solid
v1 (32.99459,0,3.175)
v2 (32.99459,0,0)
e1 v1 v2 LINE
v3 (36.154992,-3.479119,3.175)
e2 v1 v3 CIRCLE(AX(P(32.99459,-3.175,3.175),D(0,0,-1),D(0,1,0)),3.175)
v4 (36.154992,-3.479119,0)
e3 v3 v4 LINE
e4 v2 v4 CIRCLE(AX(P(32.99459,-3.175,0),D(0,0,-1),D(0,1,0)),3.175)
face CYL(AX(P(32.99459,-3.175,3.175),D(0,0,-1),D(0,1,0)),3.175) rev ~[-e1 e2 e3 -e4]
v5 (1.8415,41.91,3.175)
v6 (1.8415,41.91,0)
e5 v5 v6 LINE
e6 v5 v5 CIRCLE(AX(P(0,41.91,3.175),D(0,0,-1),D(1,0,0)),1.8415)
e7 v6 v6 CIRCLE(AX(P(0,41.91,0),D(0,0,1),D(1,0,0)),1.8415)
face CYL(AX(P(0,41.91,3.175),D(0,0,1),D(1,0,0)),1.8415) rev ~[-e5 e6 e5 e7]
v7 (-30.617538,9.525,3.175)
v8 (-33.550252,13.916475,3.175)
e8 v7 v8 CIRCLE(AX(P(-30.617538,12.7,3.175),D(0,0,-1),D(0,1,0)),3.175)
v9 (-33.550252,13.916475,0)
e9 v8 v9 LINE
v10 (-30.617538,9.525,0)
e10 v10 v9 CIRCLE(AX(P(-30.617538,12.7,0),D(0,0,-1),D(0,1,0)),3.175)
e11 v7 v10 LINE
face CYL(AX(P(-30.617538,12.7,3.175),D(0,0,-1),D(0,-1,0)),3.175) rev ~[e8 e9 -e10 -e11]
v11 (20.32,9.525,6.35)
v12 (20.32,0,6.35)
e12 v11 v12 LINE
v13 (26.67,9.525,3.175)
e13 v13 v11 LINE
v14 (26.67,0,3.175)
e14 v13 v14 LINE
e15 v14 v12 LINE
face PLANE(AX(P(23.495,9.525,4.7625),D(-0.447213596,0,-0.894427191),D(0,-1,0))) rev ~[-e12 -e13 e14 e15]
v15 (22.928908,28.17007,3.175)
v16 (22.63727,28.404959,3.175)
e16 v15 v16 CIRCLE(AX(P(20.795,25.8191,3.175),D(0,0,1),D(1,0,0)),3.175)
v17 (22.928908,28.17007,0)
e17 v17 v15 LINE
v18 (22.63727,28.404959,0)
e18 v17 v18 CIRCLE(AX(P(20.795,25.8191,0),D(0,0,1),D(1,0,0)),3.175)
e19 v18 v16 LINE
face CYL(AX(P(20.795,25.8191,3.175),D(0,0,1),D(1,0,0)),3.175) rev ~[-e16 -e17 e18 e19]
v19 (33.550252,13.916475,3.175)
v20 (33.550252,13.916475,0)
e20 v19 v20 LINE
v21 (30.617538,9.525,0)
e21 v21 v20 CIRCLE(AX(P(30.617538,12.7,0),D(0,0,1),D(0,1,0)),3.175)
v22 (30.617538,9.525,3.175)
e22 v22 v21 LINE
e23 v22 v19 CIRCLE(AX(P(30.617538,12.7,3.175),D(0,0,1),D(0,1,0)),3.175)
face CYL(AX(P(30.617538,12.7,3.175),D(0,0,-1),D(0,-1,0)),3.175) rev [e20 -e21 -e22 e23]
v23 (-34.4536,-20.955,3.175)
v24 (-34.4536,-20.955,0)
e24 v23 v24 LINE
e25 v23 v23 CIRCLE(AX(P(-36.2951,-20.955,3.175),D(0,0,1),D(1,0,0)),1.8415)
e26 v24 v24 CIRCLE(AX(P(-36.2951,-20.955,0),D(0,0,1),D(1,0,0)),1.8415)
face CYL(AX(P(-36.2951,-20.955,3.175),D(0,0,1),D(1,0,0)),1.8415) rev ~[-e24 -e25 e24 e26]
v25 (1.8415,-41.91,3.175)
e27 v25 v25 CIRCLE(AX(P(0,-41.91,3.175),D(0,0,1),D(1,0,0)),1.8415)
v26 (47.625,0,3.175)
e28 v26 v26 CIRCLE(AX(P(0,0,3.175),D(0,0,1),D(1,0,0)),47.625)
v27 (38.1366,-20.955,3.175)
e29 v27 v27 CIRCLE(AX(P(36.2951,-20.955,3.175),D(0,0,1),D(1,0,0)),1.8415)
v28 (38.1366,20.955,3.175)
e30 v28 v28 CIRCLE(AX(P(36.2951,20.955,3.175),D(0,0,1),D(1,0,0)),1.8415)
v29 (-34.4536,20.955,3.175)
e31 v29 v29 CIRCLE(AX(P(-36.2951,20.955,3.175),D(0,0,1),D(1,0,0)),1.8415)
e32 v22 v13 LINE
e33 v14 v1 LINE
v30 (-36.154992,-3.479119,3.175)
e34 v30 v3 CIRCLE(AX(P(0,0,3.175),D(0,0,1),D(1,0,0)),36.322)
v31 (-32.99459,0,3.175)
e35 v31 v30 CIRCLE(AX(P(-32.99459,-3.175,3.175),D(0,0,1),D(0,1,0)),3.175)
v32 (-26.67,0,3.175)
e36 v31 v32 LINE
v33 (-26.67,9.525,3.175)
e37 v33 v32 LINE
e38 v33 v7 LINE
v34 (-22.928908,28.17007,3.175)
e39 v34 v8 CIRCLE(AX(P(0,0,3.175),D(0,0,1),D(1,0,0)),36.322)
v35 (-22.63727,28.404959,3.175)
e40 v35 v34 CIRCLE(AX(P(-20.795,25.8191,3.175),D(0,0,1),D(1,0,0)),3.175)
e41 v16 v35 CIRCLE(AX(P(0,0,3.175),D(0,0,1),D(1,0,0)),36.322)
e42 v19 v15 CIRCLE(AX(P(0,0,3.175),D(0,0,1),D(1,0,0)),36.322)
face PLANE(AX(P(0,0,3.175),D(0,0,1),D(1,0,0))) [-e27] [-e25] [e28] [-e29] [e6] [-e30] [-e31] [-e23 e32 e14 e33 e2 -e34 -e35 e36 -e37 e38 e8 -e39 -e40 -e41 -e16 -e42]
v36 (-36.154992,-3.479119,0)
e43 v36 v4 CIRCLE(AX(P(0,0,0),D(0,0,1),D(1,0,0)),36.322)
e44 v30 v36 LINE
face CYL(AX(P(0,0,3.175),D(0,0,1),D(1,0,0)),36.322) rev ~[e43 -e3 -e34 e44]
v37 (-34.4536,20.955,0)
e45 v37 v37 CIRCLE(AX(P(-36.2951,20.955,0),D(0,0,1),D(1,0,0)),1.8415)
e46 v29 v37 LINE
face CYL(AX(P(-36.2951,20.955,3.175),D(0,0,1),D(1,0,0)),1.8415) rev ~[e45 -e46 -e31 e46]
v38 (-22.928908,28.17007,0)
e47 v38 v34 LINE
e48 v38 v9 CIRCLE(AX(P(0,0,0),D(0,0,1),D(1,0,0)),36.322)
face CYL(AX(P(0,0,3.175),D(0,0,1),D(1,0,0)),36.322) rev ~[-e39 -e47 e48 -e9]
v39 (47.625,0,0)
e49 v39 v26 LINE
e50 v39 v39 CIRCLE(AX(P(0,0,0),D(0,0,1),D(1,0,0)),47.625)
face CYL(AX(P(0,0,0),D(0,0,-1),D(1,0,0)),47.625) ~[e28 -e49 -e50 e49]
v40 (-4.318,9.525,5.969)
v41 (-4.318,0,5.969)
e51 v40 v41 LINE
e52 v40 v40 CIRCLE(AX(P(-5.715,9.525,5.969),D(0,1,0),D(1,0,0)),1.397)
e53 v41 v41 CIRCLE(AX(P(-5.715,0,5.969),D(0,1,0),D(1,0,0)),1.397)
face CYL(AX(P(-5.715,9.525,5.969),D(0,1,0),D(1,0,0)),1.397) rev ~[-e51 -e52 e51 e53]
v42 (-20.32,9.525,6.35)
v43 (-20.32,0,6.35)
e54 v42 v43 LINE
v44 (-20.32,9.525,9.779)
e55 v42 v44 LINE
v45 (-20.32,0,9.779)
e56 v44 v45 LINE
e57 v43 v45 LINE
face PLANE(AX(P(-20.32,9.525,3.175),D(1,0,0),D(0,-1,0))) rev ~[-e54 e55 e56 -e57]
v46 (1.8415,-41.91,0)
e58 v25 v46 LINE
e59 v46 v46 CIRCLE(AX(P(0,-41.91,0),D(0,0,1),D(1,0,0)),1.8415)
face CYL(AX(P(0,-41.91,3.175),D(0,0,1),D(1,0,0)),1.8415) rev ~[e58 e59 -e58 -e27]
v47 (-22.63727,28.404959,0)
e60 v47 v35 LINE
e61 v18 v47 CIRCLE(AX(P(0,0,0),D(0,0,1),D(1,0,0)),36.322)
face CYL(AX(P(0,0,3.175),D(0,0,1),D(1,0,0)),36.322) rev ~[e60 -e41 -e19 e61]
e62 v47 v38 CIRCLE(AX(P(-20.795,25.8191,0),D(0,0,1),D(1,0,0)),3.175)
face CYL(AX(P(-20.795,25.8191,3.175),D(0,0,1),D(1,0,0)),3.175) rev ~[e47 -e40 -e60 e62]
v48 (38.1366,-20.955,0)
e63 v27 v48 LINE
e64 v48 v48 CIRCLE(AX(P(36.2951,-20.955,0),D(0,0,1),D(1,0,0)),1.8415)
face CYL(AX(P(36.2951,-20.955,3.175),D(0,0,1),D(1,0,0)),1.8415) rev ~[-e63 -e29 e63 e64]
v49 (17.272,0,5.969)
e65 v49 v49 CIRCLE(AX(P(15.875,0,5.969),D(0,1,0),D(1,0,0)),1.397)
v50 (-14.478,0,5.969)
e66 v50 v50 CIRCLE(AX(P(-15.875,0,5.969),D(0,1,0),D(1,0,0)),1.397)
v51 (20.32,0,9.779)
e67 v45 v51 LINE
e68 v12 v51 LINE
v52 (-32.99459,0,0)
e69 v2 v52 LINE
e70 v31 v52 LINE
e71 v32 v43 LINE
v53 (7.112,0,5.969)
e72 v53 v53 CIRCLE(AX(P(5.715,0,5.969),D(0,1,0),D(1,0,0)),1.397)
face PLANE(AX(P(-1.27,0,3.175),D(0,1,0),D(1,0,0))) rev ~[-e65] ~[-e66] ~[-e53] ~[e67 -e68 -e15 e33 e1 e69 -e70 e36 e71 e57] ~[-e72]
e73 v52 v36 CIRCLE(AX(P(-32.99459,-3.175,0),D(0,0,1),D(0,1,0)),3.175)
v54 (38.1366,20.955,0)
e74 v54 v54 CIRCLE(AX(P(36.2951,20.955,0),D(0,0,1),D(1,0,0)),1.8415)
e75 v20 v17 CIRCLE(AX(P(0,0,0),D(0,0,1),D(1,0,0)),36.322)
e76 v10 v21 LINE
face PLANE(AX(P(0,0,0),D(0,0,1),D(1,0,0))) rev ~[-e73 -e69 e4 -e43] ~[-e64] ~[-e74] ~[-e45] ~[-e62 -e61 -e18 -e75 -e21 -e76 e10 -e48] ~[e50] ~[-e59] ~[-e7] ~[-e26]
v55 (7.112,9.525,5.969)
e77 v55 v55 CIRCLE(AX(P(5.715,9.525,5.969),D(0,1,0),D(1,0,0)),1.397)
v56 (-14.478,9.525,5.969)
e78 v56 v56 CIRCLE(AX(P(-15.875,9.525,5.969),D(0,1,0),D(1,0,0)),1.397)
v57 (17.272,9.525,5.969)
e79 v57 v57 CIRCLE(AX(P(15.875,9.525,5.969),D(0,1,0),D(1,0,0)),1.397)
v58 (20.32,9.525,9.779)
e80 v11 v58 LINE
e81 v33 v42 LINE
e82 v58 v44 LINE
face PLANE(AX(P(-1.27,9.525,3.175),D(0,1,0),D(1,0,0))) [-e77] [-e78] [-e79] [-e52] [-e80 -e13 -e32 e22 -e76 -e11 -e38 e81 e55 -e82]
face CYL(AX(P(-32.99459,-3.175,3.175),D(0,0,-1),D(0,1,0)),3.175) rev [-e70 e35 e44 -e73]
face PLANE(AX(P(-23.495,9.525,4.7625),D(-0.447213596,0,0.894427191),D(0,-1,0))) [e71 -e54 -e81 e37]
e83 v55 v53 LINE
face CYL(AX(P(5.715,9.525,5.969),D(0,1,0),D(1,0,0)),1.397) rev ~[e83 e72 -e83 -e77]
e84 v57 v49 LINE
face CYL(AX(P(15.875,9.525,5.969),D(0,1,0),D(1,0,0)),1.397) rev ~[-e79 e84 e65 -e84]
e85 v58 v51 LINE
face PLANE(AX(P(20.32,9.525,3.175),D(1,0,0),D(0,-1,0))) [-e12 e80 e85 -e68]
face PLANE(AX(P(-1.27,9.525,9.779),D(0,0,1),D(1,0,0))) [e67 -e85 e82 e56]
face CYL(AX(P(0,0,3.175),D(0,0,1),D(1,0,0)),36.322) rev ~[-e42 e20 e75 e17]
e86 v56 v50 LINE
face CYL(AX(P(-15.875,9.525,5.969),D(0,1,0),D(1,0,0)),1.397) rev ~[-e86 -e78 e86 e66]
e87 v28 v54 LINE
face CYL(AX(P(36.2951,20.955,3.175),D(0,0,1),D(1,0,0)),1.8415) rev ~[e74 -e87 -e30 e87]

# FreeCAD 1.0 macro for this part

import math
import FreeCAD as App
import Part
import Sketcher
Q = App.Units.Quantity


def edges_at(feature, points):
    """Names of the edges that pass closest to the given points."""
    edges = feature.Shape.Edges
    near = lambda p: min(range(len(edges)), key=lambda i: edges[i].distToShape(Part.Vertex(*p))[0])
    return sorted({f"Edge{near(p) + 1}" for p in points})

doc = App.newDocument("Part")
params = doc.addObject("Spreadsheet::Sheet", "Params")
for row, (alias, value) in enumerate([
    ("sketch1_diameter", "3.75 in"),
    ("pad1_length", "0.125 in"),
    ("sketch2_width", "0.75 in"),
    ("sketch2_height", "0.375 in"),
    ("pad2_length", "0.26 in"),
    ("sketch3_diameter", "0.11 in"),
    ("sketch4_diameter", "0.25 in"),
    ("pocket2_length", "1 in"),
    ("sketch5_diameter", "0.145 in"),
    ("pocket3_length", "1 in"),
    ("sketch6_radius", "1.43 in"),
    ("sketch7_width", "0.1 in"),
    ("sketch7_height", "0.26 in"),
    ("pad3_length", "0.375 in"),
    ("chamfer_size", "0.25 in"),
    ("chamfer_size2", "0.125 in"),
    ("chamfer2_size", "0.25 in"),
    ("chamfer2_size2", "0.125 in"),
    ("fillet_radius", "0.125 in"),
], start=1):
    params.set(f"A{row}", alias)
    params.set(f"B{row}", "=" + value)
    params.setAlias(f"B{row}", alias)

body = doc.addObject("PartDesign::Body", "Body")

sketch1 = body.newObject("Sketcher::SketchObject", "Sketch")
sketch1.AttachmentSupport = (doc.getObject("XY_Plane"), [""])
sketch1.MapMode = "FlatFace"
sketch1.addGeometry(Part.Circle(App.Vector(0, 0, 0), App.Vector(0, 0, 1), 47.625), False)
sketch1.addConstraint([
    Sketcher.Constraint("Coincident", 0, 3, -1, 1),
    Sketcher.Constraint("Diameter", 0, Q("3.75 in")),
])
sketch1.setExpression("Constraints[1]", "Params.sketch1_diameter")
pad1 = body.newObject("PartDesign::Pad", "Pad")
pad1.Profile = sketch1
pad1.setExpression("Length", "Params.pad1_length")

sketch2 = body.newObject("Sketcher::SketchObject", "Sketch001")
sketch2.AttachmentSupport = (doc.getObject("XY_Plane"), [""])
sketch2.MapMode = "FlatFace"
sketch2.AttachmentOffset = App.Placement(App.Vector(0, 0, 0.125 * 25.4), App.Rotation())
sketch2.addGeometry([
    Part.LineSegment(App.Vector(20.32, 9.525, 0), App.Vector(1.27, 9.525, 0)),
    Part.LineSegment(App.Vector(1.27, 9.525, 0), App.Vector(1.27, 0, 0)),
    Part.LineSegment(App.Vector(1.27, 0, 0), App.Vector(20.32, 0, 0)),
    Part.LineSegment(App.Vector(20.32, 0, 0), App.Vector(20.32, 9.525, 0)),
    Part.LineSegment(App.Vector(-1.27, 0, 0), App.Vector(-1.27, 9.525, 0)),
    Part.LineSegment(App.Vector(-1.27, 9.525, 0), App.Vector(-20.32, 9.525, 0)),
    Part.LineSegment(App.Vector(-20.32, 9.525, 0), App.Vector(-20.32, 0, 0)),
    Part.LineSegment(App.Vector(-20.32, 0, 0), App.Vector(-1.27, 0, 0)),
], False)
sketch2.addConstraint([
    Sketcher.Constraint("Coincident", 0, 2, 1, 1),
    Sketcher.Constraint("Coincident", 1, 2, 2, 1),
    Sketcher.Constraint("Coincident", 2, 2, 3, 1),
    Sketcher.Constraint("Coincident", 3, 2, 0, 1),
    Sketcher.Constraint("Coincident", 4, 2, 5, 1),
    Sketcher.Constraint("Coincident", 5, 2, 6, 1),
    Sketcher.Constraint("Coincident", 6, 2, 7, 1),
    Sketcher.Constraint("Coincident", 7, 2, 4, 1),
    Sketcher.Constraint("Horizontal", 0),
    Sketcher.Constraint("Vertical", 1),
    Sketcher.Constraint("Horizontal", 2),
    Sketcher.Constraint("Vertical", 3),
    Sketcher.Constraint("Vertical", 4),
    Sketcher.Constraint("Horizontal", 5),
    Sketcher.Constraint("Vertical", 6),
    Sketcher.Constraint("Horizontal", 7),
    Sketcher.Constraint("Symmetric", 2, 2, 6, 2, -1, 1),
    Sketcher.Constraint("Symmetric", 0, 2, 4, 2, -2),
    Sketcher.Constraint("PointOnObject", 1, 2, -1),
    Sketcher.Constraint("DistanceX", 0, 2, 0, 1, Q("0.75 in")),
    Sketcher.Constraint("DistanceY", 1, 2, 1, 1, Q("0.375 in")),
    Sketcher.Constraint("DistanceX", -1, 1, 0, 2, Q("0.05 in")),
])
sketch2.setExpression("Constraints[19]", "Params.sketch2_width")
sketch2.setExpression("Constraints[20]", "Params.sketch2_height")
pad2 = body.newObject("PartDesign::Pad", "Pad001")
pad2.Profile = sketch2
pad2.setExpression("Length", "Params.pad2_length")

sketch3 = body.newObject("Sketcher::SketchObject", "Sketch002")
sketch3.AttachmentSupport = (doc.getObject("XZ_Plane"), [""])
sketch3.MapMode = "FlatFace"
sketch3.AttachmentOffset = App.Placement(App.Vector(0, 0, -0.375 * 25.4), App.Rotation())
sketch3.addGeometry([
    Part.Circle(App.Vector(5.715, 5.969, 0), App.Vector(0, 0, 1), 1.397),
    Part.Circle(App.Vector(15.875, 5.969, 0), App.Vector(0, 0, 1), 1.397),
    Part.Circle(App.Vector(-5.715, 5.969, 0), App.Vector(0, 0, 1), 1.397),
    Part.Circle(App.Vector(-15.875, 5.969, 0), App.Vector(0, 0, 1), 1.397),
], False)
sketch3.addConstraint([
    Sketcher.Constraint("Equal", 0, 1),
    Sketcher.Constraint("Equal", 1, 2),
    Sketcher.Constraint("Equal", 2, 3),
    Sketcher.Constraint("Symmetric", 0, 3, 2, 3, -2),
    Sketcher.Constraint("Symmetric", 1, 3, 3, 3, -2),
    Sketcher.Constraint("Horizontal", 0, 3, 1, 3),
    Sketcher.Constraint("Diameter", 0, Q("0.11 in")),
    Sketcher.Constraint("DistanceX", 0, 3, 1, 3, Q("0.4 in")),
    Sketcher.Constraint("DistanceX", 2, 3, 0, 3, Q("0.45 in")),
    Sketcher.Constraint("DistanceY", -1, 1, 0, 3, Q("0.235 in")),
])
sketch3.setExpression("Constraints[6]", "Params.sketch3_diameter")
pocket1 = body.newObject("PartDesign::Pocket", "Pocket")
pocket1.Profile = sketch3
pocket1.Type = "ThroughAll"
pocket1.Reversed = True

sketch4 = body.newObject("Sketcher::SketchObject", "Sketch003")
sketch4.AttachmentSupport = (doc.getObject("XY_Plane"), [""])
sketch4.MapMode = "FlatFace"
sketch4.AttachmentOffset = App.Placement(App.Vector(0, 0, 0.125 * 25.4), App.Rotation())
sketch4.addGeometry([
    Part.Circle(App.Vector(20.795, 25.8191, 0), App.Vector(0, 0, 1), 3.175),
    Part.Circle(App.Vector(-20.795, 25.8191, 0), App.Vector(0, 0, 1), 3.175),
], False)
sketch4.addConstraint([
    Sketcher.Constraint("Equal", 0, 1),
    Sketcher.Constraint("Symmetric", 0, 3, 1, 3, -2),
    Sketcher.Constraint("Diameter", 0, Q("0.25 in")),
    Sketcher.Constraint("DistanceX", -1, 1, 0, 3, Q("0.8187 in")),
    Sketcher.Constraint("DistanceY", -1, 1, 0, 3, Q("1.0165 in")),
])
sketch4.setExpression("Constraints[2]", "Params.sketch4_diameter")
pocket2 = body.newObject("PartDesign::Pocket", "Pocket001")
pocket2.Profile = sketch4
pocket2.setExpression("Length", "Params.pocket2_length")

sketch5 = body.newObject("Sketcher::SketchObject", "Sketch004")
sketch5.AttachmentSupport = (doc.getObject("XY_Plane"), [""])
sketch5.MapMode = "FlatFace"
sketch5.AttachmentOffset = App.Placement(App.Vector(0, 0, 0.125 * 25.4), App.Rotation())
sketch5.addGeometry([
    Part.Circle(App.Vector(0, 41.91, 0), App.Vector(0, 0, 1), 1.8415),
    Part.Circle(App.Vector(-36.2951, 20.955, 0), App.Vector(0, 0, 1), 1.8415),
    Part.Circle(App.Vector(-36.2951, -20.955, 0), App.Vector(0, 0, 1), 1.8415),
    Part.Circle(App.Vector(0, -41.91, 0), App.Vector(0, 0, 1), 1.8415),
    Part.Circle(App.Vector(36.2951, -20.955, 0), App.Vector(0, 0, 1), 1.8415),
    Part.Circle(App.Vector(36.2951, 20.955, 0), App.Vector(0, 0, 1), 1.8415),
], False)
sketch5.addConstraint([
    Sketcher.Constraint("Equal", 0, 1),
    Sketcher.Constraint("Equal", 1, 2),
    Sketcher.Constraint("Equal", 2, 3),
    Sketcher.Constraint("Equal", 3, 4),
    Sketcher.Constraint("Equal", 4, 5),
    Sketcher.Constraint("Symmetric", 0, 3, 3, 3, -1, 1),
    Sketcher.Constraint("Symmetric", 1, 3, 4, 3, -1, 1),
    Sketcher.Constraint("Symmetric", 2, 3, 5, 3, -1, 1),
    Sketcher.Constraint("Symmetric", 2, 3, 4, 3, -2),
    Sketcher.Constraint("PointOnObject", 0, 3, -2),
    Sketcher.Constraint("Diameter", 0, Q("0.145 in")),
    Sketcher.Constraint("DistanceY", -1, 1, 0, 3, Q("1.65 in")),
    Sketcher.Constraint("DistanceY", 2, 3, 1, 3, Q("1.65 in")),
    Sketcher.Constraint("DistanceX", 1, 3, -1, 1, 36.295),
])
sketch5.setExpression("Constraints[10]", "Params.sketch5_diameter")
pocket3 = body.newObject("PartDesign::Pocket", "Pocket002")
pocket3.Profile = sketch5
pocket3.setExpression("Length", "Params.pocket3_length")

sketch6 = body.newObject("Sketcher::SketchObject", "Sketch005")
sketch6.AttachmentSupport = (doc.getObject("XY_Plane"), [""])
sketch6.MapMode = "FlatFace"
sketch6.AttachmentOffset = App.Placement(App.Vector(0, 0, 0.125 * 25.4), App.Rotation())
sketch6.addGeometry([
    Part.ArcOfCircle(Part.Circle(App.Vector(0, 0, 0), App.Vector(0, 0, 1), 36.322), math.radians(180), math.radians(360)),
    Part.LineSegment(App.Vector(36.322, 0, 0), App.Vector(-36.322, 0, 0)),
    Part.LineSegment(App.Vector(-35.0508, 9.525, 0), App.Vector(35.0508, 9.525, 0)),
    Part.ArcOfCircle(Part.Circle(App.Vector(0, 0, 0), App.Vector(0, 0, 1), 36.322), math.radians(15.202905), math.radians(164.797095)),
], False)
sketch6.addConstraint([
    Sketcher.Constraint("Coincident", 0, 1, 1, 2),
    Sketcher.Constraint("Coincident", 1, 1, 0, 2),
    Sketcher.Constraint("Coincident", 2, 1, 3, 2),
    Sketcher.Constraint("Coincident", 3, 1, 2, 2),
    Sketcher.Constraint("Horizontal", 1),
    Sketcher.Constraint("Horizontal", 2),
    Sketcher.Constraint("Coincident", 0, 3, -1, 1),
    Sketcher.Constraint("Coincident", 3, 3, -1, 1),
    Sketcher.Constraint("Equal", 0, 3),
    Sketcher.Constraint("PointOnObject", 0, 1, -1),
    Sketcher.Constraint("Radius", 0, Q("1.43 in")),
    Sketcher.Constraint("DistanceX", 2, 1, 2, 2, Q("2.7599 in")),
])
sketch6.setExpression("Constraints[10]", "Params.sketch6_radius")
pocket4 = body.newObject("PartDesign::Pocket", "Pocket003")
pocket4.Profile = sketch6
pocket4.Type = "ThroughAll"

sketch7 = body.newObject("Sketcher::SketchObject", "Sketch006")
sketch7.AttachmentSupport = (doc.getObject("XZ_Plane"), [""])
sketch7.MapMode = "FlatFace"
sketch7.AttachmentOffset = App.Placement(App.Vector(0, 0, -0.375 * 25.4), App.Rotation())
sketch7.addGeometry([
    Part.LineSegment(App.Vector(1.27, 3.175, 0), App.Vector(-1.27, 3.175, 0)),
    Part.LineSegment(App.Vector(-1.27, 3.175, 0), App.Vector(-1.27, 9.779, 0)),
    Part.LineSegment(App.Vector(-1.27, 9.779, 0), App.Vector(1.27, 9.779, 0)),
    Part.LineSegment(App.Vector(1.27, 9.779, 0), App.Vector(1.27, 3.175, 0)),
], False)
sketch7.addConstraint([
    Sketcher.Constraint("Coincident", 0, 2, 1, 1),
    Sketcher.Constraint("Coincident", 1, 2, 2, 1),
    Sketcher.Constraint("Coincident", 2, 2, 3, 1),
    Sketcher.Constraint("Coincident", 3, 2, 0, 1),
    Sketcher.Constraint("Horizontal", 0),
    Sketcher.Constraint("Vertical", 1),
    Sketcher.Constraint("Horizontal", 2),
    Sketcher.Constraint("Vertical", 3),
    Sketcher.Constraint("DistanceX", 0, 2, 0, 1, Q("0.1 in")),
    Sketcher.Constraint("DistanceY", 1, 1, 1, 2, Q("0.26 in")),
    Sketcher.Constraint("DistanceX", 0, 2, -1, 1, Q("0.05 in")),
    Sketcher.Constraint("DistanceY", -1, 1, 0, 2, Q("0.125 in")),
])
sketch7.setExpression("Constraints[8]", "Params.sketch7_width")
sketch7.setExpression("Constraints[9]", "Params.sketch7_height")
pad3 = body.newObject("PartDesign::Pad", "Pad002")
pad3.Profile = sketch7
pad3.setExpression("Length", "Params.pad3_length")
doc.recompute()

chamfer = body.newObject("PartDesign::Chamfer", "Chamfer")
chamfer.Base = (pad3, edges_at(pad3, [(20.32, 4.763, 3.175)]))
chamfer.ChamferType = "Two distances"
chamfer.setExpression("Size", "Params.chamfer_size")
chamfer.setExpression("Size2", "Params.chamfer_size2")
doc.recompute()

chamfer2 = body.newObject("PartDesign::Chamfer", "Chamfer001")
chamfer2.Base = (chamfer, edges_at(chamfer, [(-20.32, 4.763, 3.175)]))
chamfer2.ChamferType = "Two distances"
chamfer2.setExpression("Size", "Params.chamfer2_size")
chamfer2.setExpression("Size2", "Params.chamfer2_size2")
doc.recompute()

fillet = body.newObject("PartDesign::Fillet", "Fillet")
fillet.Base = (chamfer2, edges_at(chamfer2, [
    (-35.051, 9.525, 1.587),
    (-36.322, 0, 1.587),
    (35.051, 9.525, 1.587),
    (36.322, 0, 1.587),
]))
fillet.setExpression("Radius", "Params.fillet_radius")

doc.recompute()
